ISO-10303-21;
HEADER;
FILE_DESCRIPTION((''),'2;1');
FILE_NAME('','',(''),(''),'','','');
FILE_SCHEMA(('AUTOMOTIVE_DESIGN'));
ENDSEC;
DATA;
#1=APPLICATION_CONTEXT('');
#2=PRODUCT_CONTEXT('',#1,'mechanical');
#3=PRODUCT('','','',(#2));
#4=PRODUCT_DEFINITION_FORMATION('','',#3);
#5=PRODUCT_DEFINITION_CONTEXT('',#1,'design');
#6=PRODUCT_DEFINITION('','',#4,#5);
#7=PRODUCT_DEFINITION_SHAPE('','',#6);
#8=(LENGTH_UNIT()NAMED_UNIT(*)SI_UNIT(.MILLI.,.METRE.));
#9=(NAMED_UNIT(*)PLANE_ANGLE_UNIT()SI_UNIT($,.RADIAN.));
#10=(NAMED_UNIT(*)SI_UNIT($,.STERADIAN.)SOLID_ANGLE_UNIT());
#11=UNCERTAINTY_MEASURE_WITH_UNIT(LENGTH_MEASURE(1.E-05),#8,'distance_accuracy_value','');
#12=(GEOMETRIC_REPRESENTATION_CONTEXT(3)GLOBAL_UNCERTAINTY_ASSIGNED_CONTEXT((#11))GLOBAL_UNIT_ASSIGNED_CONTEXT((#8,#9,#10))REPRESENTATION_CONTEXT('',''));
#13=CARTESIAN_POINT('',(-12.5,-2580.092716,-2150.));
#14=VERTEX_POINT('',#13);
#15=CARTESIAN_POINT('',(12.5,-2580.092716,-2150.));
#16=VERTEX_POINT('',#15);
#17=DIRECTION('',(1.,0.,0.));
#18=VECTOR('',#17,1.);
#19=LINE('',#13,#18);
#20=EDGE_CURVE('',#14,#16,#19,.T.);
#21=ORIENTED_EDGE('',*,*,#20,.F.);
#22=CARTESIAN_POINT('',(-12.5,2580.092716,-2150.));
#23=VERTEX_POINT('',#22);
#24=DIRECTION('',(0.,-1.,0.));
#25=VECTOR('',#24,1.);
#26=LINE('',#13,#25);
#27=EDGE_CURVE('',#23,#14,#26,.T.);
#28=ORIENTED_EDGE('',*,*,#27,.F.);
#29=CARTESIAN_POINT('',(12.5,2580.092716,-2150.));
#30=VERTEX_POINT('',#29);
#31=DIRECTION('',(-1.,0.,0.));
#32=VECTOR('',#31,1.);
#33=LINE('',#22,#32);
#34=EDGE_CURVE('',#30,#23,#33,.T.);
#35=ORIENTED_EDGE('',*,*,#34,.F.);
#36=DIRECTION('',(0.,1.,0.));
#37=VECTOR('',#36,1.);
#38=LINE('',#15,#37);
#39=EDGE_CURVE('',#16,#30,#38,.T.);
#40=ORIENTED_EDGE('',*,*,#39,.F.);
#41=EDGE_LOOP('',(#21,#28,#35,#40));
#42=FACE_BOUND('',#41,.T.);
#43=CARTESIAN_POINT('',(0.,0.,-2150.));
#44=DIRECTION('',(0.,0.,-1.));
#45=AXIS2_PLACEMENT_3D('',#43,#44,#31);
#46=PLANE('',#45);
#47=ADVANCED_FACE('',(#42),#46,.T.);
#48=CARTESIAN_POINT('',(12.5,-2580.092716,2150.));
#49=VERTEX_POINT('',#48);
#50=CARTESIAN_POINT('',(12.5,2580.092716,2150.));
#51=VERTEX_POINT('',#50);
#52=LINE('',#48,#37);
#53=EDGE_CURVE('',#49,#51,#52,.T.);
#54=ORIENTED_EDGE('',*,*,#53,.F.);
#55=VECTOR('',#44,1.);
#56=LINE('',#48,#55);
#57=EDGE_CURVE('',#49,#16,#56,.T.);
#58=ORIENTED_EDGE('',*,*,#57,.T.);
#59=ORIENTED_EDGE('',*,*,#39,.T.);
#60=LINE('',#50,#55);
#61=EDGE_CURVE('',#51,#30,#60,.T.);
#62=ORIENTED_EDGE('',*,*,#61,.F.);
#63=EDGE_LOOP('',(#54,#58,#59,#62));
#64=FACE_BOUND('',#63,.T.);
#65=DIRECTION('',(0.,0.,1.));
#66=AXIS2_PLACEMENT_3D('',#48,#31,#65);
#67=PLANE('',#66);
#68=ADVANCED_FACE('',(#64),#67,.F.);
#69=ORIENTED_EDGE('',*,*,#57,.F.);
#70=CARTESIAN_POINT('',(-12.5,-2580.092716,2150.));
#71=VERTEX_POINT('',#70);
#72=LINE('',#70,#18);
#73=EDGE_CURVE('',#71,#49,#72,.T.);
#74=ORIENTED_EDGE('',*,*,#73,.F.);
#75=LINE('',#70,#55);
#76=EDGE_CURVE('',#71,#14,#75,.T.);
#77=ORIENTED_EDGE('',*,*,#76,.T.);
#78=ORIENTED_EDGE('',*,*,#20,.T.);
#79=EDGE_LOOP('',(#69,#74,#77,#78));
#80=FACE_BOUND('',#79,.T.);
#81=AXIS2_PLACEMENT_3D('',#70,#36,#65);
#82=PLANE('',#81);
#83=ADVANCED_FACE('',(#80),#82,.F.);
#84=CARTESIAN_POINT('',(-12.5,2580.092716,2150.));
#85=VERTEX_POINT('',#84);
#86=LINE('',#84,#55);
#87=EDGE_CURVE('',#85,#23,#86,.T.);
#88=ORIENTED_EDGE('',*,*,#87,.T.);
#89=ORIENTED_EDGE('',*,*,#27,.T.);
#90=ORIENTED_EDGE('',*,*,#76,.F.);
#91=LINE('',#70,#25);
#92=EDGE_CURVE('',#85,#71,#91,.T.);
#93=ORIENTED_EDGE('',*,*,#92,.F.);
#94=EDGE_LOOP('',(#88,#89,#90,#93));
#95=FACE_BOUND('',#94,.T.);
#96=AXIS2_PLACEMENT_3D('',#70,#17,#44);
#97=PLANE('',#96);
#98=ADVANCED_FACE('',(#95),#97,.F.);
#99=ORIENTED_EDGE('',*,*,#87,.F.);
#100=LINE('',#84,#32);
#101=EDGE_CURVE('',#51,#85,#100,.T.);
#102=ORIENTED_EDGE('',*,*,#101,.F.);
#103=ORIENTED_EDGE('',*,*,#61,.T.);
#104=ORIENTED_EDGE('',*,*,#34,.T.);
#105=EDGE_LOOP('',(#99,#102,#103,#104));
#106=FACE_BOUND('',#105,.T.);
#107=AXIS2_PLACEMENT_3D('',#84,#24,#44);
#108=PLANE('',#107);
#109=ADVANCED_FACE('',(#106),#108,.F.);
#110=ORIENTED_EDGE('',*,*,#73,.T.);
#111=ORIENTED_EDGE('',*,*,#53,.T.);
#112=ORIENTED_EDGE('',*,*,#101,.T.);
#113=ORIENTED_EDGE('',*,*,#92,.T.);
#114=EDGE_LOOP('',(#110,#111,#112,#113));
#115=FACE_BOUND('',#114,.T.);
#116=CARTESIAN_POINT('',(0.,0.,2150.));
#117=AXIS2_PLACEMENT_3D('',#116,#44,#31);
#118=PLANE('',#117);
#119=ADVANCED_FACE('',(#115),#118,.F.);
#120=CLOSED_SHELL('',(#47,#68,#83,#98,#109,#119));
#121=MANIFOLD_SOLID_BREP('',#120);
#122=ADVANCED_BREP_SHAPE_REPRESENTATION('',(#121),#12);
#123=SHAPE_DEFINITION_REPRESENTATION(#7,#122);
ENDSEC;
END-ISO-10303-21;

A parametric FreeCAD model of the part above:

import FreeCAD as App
import Part
import Sketcher
Q = App.Units.Quantity


def add_polygon(sketch, points):
    """Adds a closed chain of lines whose ends are joined by coincident constraints."""
    first, n = sketch.GeometryCount, len(points)
    for a, b in zip(points, points[1:] + points[:1]):
        sketch.addGeometry(Part.LineSegment(App.Vector(*a, 0), App.Vector(*b, 0)), False)
    for i in range(n):
        sketch.addConstraint(Sketcher.Constraint("Coincident", first + i, 2, first + (i + 1) % n, 1))

doc = App.newDocument("Part")
body = doc.addObject("PartDesign::Body", "Body")

sketch1 = body.newObject("Sketcher::SketchObject", "Sketch")
sketch1.AttachmentSupport = (doc.getObject("XY_Plane"), [""])
sketch1.MapMode = "FlatFace"
sketch1.AttachmentOffset = App.Placement(App.Vector(0, 0, -2150), App.Rotation())
add_polygon(sketch1, [(-12.5, 2580.092716), (-12.5, -2580.092716), (12.5, -2580.092716), (12.5, 2580.092716)])
sketch1.addConstraint([
    Sketcher.Constraint("Vertical", 0),
    Sketcher.Constraint("Horizontal", 1),
    Sketcher.Constraint("Vertical", 2),
    Sketcher.Constraint("Horizontal", 3),
    Sketcher.Constraint("Symmetric", 0, 2, 2, 2, -1, 1),
    Sketcher.Constraint("DistanceX", 1, 1, 1, 2, Q("25 mm")),
    Sketcher.Constraint("DistanceY", 0, 2, 0, 1, Q("5160.185432 mm")),
])
pad1 = body.newObject("PartDesign::Pad", "Pad")
pad1.Profile = sketch1
pad1.Length = 4300

doc.recompute()
